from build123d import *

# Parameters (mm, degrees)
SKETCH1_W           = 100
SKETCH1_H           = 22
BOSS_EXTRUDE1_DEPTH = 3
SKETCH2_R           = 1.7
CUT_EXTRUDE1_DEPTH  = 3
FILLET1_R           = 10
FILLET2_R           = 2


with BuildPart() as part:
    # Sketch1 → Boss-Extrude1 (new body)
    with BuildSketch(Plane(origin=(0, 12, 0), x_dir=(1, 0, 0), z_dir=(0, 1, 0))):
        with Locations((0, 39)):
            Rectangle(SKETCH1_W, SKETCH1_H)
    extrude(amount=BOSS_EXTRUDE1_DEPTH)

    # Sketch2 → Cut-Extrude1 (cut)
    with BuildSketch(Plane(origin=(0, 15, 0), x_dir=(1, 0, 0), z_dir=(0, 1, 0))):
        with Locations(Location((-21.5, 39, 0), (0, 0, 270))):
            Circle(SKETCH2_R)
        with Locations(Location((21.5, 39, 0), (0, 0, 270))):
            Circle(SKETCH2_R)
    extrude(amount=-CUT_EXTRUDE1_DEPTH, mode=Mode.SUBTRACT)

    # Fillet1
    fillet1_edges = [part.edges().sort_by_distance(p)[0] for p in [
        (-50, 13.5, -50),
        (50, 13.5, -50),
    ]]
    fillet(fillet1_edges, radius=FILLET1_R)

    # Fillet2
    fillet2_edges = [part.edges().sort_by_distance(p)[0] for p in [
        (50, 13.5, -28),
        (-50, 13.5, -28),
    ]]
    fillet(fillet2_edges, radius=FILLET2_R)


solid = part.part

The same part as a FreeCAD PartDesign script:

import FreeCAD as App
import Part
import Sketcher

V = App.Vector


def edges_at(feature, points):
    """Names of the edges that pass closest to the given points."""
    edges = feature.Shape.Edges
    near = lambda p: min(range(len(edges)), key=lambda i: edges[i].distToShape(Part.Vertex(*p))[0])
    return sorted({f"Edge{near(p) + 1}" for p in points})

doc = App.newDocument("Part")
body = doc.addObject("PartDesign::Body", "Body")

# Sketch on XZ plane
sketch1 = body.newObject("Sketcher::SketchObject", "Sketch")
sketch1.AttachmentSupport = (doc.getObject("XZ_Plane"), [""])
sketch1.MapMode = "FlatFace"
sketch1.AttachmentOffset = App.Placement(V(0, 0, -12), App.Rotation())
sketch1.addGeometry(Part.LineSegment(V(-50, -50, 0), V(-50, -28, 0)), False)
sketch1.addGeometry(Part.LineSegment(V(-50, -28, 0), V(50, -28, 0)), False)
sketch1.addGeometry(Part.LineSegment(V(50, -28, 0), V(50, -50, 0)), False)
sketch1.addGeometry(Part.LineSegment(V(50, -50, 0), V(-50, -50, 0)), False)
sketch1.addConstraint(Sketcher.Constraint("Coincident", 0, 2, 1, 1))
sketch1.addConstraint(Sketcher.Constraint("Coincident", 1, 2, 2, 1))
sketch1.addConstraint(Sketcher.Constraint("Coincident", 2, 2, 3, 1))
sketch1.addConstraint(Sketcher.Constraint("Coincident", 3, 2, 0, 1))
sketch1.addConstraint(Sketcher.Constraint("Vertical", 0))
sketch1.addConstraint(Sketcher.Constraint("Horizontal", 1))
sketch1.addConstraint(Sketcher.Constraint("Vertical", 2))
sketch1.addConstraint(Sketcher.Constraint("Horizontal", 3))
sketch1.addConstraint(Sketcher.Constraint("DistanceX", 1, 1, 1, 2, 100.0))
sketch1.addConstraint(Sketcher.Constraint("DistanceY", 0, 1, 0, 2, 22.0))
sketch1.addConstraint(Sketcher.Constraint("DistanceX", 0, 2, -1, 1, 50.0))
sketch1.addConstraint(Sketcher.Constraint("DistanceY", 0, 2, -1, 1, 28.0))
pad1 = body.newObject("PartDesign::Pad", "Pad")
pad1.Profile = sketch1
pad1.Length = 3
pad1.Reversed = True

# Sketch on XZ plane
sketch2 = body.newObject("Sketcher::SketchObject", "Sketch001")
sketch2.AttachmentSupport = (doc.getObject("XZ_Plane"), [""])
sketch2.MapMode = "FlatFace"
sketch2.AttachmentOffset = App.Placement(V(0, 0, -15), App.Rotation())
sketch2.addGeometry(Part.Circle(V(-21.5, -39, 0), V(0, 0, 1), 1.7), False)
sketch2.addGeometry(Part.Circle(V(21.5, -39, 0), V(0, 0, 1), 1.7), False)
sketch2.addConstraint(Sketcher.Constraint("Equal", 0, 1))
sketch2.addConstraint(Sketcher.Constraint("Symmetric", 0, 3, 1, 3, -2))
sketch2.addConstraint(Sketcher.Constraint("Diameter", 0, 3.4))
sketch2.addConstraint(Sketcher.Constraint("DistanceY", 0, 3, -1, 1, 39.0))
sketch2.addConstraint(Sketcher.Constraint("DistanceX", 0, 3, 1, 3, 43.0))
pocket1 = body.newObject("PartDesign::Pocket", "Pocket")
pocket1.Profile = sketch2
pocket1.Length = 3
pocket1.Reversed = True
doc.recompute()

fillet = body.newObject("PartDesign::Fillet", "Fillet")
fillet.Base = (pocket1, edges_at(pocket1, [(-50, 13.5, -50), (50, 13.5, -50)]))
fillet.Radius = 10
doc.recompute()

fillet2 = body.newObject("PartDesign::Fillet", "Fillet001")
fillet2.Base = (fillet, edges_at(fillet, [(50, 13.5, -28), (-50, 13.5, -28)]))
fillet2.Radius = 2

doc.recompute()
